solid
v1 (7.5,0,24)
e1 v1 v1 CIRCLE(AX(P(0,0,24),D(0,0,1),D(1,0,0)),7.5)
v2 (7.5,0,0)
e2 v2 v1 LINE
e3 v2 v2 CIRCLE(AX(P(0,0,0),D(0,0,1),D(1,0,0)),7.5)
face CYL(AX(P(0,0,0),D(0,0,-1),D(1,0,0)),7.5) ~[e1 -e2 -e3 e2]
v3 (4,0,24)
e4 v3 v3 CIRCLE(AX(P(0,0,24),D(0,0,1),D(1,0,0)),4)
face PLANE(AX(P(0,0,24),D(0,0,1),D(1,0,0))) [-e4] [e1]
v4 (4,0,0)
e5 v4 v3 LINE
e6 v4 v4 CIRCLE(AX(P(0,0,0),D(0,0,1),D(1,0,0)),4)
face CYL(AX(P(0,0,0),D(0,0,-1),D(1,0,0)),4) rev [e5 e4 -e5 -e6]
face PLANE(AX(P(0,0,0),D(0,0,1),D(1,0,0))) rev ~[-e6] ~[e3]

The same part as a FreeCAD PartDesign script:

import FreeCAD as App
import Part
import Sketcher
Q = App.Units.Quantity

doc = App.newDocument("Part")
body = doc.addObject("PartDesign::Body", "Body")

# Sketch on XY plane
sketch1 = body.newObject("Sketcher::SketchObject", "Sketch")
sketch1.AttachmentSupport = (doc.getObject("XY_Plane"), [""])
sketch1.MapMode = "FlatFace"
sketch1.addGeometry(Part.Circle(App.Vector(0, 0, 0), App.Vector(0, 0, 1), 7.5), False)
sketch1.addGeometry(Part.Circle(App.Vector(0, 0, 0), App.Vector(0, 0, 1), 4), False)
sketch1.addConstraint(Sketcher.Constraint("Coincident", 0, 3, -1, 1))
sketch1.addConstraint(Sketcher.Constraint("Coincident", 1, 3, -1, 1))
sketch1.addConstraint(Sketcher.Constraint("Diameter", 0, Q("15 mm")))
sketch1.addConstraint(Sketcher.Constraint("Diameter", 1, Q("8 mm")))
pad1 = body.newObject("PartDesign::Pad", "Pad")
pad1.Profile = sketch1
pad1.Length = 24

doc.recompute()
